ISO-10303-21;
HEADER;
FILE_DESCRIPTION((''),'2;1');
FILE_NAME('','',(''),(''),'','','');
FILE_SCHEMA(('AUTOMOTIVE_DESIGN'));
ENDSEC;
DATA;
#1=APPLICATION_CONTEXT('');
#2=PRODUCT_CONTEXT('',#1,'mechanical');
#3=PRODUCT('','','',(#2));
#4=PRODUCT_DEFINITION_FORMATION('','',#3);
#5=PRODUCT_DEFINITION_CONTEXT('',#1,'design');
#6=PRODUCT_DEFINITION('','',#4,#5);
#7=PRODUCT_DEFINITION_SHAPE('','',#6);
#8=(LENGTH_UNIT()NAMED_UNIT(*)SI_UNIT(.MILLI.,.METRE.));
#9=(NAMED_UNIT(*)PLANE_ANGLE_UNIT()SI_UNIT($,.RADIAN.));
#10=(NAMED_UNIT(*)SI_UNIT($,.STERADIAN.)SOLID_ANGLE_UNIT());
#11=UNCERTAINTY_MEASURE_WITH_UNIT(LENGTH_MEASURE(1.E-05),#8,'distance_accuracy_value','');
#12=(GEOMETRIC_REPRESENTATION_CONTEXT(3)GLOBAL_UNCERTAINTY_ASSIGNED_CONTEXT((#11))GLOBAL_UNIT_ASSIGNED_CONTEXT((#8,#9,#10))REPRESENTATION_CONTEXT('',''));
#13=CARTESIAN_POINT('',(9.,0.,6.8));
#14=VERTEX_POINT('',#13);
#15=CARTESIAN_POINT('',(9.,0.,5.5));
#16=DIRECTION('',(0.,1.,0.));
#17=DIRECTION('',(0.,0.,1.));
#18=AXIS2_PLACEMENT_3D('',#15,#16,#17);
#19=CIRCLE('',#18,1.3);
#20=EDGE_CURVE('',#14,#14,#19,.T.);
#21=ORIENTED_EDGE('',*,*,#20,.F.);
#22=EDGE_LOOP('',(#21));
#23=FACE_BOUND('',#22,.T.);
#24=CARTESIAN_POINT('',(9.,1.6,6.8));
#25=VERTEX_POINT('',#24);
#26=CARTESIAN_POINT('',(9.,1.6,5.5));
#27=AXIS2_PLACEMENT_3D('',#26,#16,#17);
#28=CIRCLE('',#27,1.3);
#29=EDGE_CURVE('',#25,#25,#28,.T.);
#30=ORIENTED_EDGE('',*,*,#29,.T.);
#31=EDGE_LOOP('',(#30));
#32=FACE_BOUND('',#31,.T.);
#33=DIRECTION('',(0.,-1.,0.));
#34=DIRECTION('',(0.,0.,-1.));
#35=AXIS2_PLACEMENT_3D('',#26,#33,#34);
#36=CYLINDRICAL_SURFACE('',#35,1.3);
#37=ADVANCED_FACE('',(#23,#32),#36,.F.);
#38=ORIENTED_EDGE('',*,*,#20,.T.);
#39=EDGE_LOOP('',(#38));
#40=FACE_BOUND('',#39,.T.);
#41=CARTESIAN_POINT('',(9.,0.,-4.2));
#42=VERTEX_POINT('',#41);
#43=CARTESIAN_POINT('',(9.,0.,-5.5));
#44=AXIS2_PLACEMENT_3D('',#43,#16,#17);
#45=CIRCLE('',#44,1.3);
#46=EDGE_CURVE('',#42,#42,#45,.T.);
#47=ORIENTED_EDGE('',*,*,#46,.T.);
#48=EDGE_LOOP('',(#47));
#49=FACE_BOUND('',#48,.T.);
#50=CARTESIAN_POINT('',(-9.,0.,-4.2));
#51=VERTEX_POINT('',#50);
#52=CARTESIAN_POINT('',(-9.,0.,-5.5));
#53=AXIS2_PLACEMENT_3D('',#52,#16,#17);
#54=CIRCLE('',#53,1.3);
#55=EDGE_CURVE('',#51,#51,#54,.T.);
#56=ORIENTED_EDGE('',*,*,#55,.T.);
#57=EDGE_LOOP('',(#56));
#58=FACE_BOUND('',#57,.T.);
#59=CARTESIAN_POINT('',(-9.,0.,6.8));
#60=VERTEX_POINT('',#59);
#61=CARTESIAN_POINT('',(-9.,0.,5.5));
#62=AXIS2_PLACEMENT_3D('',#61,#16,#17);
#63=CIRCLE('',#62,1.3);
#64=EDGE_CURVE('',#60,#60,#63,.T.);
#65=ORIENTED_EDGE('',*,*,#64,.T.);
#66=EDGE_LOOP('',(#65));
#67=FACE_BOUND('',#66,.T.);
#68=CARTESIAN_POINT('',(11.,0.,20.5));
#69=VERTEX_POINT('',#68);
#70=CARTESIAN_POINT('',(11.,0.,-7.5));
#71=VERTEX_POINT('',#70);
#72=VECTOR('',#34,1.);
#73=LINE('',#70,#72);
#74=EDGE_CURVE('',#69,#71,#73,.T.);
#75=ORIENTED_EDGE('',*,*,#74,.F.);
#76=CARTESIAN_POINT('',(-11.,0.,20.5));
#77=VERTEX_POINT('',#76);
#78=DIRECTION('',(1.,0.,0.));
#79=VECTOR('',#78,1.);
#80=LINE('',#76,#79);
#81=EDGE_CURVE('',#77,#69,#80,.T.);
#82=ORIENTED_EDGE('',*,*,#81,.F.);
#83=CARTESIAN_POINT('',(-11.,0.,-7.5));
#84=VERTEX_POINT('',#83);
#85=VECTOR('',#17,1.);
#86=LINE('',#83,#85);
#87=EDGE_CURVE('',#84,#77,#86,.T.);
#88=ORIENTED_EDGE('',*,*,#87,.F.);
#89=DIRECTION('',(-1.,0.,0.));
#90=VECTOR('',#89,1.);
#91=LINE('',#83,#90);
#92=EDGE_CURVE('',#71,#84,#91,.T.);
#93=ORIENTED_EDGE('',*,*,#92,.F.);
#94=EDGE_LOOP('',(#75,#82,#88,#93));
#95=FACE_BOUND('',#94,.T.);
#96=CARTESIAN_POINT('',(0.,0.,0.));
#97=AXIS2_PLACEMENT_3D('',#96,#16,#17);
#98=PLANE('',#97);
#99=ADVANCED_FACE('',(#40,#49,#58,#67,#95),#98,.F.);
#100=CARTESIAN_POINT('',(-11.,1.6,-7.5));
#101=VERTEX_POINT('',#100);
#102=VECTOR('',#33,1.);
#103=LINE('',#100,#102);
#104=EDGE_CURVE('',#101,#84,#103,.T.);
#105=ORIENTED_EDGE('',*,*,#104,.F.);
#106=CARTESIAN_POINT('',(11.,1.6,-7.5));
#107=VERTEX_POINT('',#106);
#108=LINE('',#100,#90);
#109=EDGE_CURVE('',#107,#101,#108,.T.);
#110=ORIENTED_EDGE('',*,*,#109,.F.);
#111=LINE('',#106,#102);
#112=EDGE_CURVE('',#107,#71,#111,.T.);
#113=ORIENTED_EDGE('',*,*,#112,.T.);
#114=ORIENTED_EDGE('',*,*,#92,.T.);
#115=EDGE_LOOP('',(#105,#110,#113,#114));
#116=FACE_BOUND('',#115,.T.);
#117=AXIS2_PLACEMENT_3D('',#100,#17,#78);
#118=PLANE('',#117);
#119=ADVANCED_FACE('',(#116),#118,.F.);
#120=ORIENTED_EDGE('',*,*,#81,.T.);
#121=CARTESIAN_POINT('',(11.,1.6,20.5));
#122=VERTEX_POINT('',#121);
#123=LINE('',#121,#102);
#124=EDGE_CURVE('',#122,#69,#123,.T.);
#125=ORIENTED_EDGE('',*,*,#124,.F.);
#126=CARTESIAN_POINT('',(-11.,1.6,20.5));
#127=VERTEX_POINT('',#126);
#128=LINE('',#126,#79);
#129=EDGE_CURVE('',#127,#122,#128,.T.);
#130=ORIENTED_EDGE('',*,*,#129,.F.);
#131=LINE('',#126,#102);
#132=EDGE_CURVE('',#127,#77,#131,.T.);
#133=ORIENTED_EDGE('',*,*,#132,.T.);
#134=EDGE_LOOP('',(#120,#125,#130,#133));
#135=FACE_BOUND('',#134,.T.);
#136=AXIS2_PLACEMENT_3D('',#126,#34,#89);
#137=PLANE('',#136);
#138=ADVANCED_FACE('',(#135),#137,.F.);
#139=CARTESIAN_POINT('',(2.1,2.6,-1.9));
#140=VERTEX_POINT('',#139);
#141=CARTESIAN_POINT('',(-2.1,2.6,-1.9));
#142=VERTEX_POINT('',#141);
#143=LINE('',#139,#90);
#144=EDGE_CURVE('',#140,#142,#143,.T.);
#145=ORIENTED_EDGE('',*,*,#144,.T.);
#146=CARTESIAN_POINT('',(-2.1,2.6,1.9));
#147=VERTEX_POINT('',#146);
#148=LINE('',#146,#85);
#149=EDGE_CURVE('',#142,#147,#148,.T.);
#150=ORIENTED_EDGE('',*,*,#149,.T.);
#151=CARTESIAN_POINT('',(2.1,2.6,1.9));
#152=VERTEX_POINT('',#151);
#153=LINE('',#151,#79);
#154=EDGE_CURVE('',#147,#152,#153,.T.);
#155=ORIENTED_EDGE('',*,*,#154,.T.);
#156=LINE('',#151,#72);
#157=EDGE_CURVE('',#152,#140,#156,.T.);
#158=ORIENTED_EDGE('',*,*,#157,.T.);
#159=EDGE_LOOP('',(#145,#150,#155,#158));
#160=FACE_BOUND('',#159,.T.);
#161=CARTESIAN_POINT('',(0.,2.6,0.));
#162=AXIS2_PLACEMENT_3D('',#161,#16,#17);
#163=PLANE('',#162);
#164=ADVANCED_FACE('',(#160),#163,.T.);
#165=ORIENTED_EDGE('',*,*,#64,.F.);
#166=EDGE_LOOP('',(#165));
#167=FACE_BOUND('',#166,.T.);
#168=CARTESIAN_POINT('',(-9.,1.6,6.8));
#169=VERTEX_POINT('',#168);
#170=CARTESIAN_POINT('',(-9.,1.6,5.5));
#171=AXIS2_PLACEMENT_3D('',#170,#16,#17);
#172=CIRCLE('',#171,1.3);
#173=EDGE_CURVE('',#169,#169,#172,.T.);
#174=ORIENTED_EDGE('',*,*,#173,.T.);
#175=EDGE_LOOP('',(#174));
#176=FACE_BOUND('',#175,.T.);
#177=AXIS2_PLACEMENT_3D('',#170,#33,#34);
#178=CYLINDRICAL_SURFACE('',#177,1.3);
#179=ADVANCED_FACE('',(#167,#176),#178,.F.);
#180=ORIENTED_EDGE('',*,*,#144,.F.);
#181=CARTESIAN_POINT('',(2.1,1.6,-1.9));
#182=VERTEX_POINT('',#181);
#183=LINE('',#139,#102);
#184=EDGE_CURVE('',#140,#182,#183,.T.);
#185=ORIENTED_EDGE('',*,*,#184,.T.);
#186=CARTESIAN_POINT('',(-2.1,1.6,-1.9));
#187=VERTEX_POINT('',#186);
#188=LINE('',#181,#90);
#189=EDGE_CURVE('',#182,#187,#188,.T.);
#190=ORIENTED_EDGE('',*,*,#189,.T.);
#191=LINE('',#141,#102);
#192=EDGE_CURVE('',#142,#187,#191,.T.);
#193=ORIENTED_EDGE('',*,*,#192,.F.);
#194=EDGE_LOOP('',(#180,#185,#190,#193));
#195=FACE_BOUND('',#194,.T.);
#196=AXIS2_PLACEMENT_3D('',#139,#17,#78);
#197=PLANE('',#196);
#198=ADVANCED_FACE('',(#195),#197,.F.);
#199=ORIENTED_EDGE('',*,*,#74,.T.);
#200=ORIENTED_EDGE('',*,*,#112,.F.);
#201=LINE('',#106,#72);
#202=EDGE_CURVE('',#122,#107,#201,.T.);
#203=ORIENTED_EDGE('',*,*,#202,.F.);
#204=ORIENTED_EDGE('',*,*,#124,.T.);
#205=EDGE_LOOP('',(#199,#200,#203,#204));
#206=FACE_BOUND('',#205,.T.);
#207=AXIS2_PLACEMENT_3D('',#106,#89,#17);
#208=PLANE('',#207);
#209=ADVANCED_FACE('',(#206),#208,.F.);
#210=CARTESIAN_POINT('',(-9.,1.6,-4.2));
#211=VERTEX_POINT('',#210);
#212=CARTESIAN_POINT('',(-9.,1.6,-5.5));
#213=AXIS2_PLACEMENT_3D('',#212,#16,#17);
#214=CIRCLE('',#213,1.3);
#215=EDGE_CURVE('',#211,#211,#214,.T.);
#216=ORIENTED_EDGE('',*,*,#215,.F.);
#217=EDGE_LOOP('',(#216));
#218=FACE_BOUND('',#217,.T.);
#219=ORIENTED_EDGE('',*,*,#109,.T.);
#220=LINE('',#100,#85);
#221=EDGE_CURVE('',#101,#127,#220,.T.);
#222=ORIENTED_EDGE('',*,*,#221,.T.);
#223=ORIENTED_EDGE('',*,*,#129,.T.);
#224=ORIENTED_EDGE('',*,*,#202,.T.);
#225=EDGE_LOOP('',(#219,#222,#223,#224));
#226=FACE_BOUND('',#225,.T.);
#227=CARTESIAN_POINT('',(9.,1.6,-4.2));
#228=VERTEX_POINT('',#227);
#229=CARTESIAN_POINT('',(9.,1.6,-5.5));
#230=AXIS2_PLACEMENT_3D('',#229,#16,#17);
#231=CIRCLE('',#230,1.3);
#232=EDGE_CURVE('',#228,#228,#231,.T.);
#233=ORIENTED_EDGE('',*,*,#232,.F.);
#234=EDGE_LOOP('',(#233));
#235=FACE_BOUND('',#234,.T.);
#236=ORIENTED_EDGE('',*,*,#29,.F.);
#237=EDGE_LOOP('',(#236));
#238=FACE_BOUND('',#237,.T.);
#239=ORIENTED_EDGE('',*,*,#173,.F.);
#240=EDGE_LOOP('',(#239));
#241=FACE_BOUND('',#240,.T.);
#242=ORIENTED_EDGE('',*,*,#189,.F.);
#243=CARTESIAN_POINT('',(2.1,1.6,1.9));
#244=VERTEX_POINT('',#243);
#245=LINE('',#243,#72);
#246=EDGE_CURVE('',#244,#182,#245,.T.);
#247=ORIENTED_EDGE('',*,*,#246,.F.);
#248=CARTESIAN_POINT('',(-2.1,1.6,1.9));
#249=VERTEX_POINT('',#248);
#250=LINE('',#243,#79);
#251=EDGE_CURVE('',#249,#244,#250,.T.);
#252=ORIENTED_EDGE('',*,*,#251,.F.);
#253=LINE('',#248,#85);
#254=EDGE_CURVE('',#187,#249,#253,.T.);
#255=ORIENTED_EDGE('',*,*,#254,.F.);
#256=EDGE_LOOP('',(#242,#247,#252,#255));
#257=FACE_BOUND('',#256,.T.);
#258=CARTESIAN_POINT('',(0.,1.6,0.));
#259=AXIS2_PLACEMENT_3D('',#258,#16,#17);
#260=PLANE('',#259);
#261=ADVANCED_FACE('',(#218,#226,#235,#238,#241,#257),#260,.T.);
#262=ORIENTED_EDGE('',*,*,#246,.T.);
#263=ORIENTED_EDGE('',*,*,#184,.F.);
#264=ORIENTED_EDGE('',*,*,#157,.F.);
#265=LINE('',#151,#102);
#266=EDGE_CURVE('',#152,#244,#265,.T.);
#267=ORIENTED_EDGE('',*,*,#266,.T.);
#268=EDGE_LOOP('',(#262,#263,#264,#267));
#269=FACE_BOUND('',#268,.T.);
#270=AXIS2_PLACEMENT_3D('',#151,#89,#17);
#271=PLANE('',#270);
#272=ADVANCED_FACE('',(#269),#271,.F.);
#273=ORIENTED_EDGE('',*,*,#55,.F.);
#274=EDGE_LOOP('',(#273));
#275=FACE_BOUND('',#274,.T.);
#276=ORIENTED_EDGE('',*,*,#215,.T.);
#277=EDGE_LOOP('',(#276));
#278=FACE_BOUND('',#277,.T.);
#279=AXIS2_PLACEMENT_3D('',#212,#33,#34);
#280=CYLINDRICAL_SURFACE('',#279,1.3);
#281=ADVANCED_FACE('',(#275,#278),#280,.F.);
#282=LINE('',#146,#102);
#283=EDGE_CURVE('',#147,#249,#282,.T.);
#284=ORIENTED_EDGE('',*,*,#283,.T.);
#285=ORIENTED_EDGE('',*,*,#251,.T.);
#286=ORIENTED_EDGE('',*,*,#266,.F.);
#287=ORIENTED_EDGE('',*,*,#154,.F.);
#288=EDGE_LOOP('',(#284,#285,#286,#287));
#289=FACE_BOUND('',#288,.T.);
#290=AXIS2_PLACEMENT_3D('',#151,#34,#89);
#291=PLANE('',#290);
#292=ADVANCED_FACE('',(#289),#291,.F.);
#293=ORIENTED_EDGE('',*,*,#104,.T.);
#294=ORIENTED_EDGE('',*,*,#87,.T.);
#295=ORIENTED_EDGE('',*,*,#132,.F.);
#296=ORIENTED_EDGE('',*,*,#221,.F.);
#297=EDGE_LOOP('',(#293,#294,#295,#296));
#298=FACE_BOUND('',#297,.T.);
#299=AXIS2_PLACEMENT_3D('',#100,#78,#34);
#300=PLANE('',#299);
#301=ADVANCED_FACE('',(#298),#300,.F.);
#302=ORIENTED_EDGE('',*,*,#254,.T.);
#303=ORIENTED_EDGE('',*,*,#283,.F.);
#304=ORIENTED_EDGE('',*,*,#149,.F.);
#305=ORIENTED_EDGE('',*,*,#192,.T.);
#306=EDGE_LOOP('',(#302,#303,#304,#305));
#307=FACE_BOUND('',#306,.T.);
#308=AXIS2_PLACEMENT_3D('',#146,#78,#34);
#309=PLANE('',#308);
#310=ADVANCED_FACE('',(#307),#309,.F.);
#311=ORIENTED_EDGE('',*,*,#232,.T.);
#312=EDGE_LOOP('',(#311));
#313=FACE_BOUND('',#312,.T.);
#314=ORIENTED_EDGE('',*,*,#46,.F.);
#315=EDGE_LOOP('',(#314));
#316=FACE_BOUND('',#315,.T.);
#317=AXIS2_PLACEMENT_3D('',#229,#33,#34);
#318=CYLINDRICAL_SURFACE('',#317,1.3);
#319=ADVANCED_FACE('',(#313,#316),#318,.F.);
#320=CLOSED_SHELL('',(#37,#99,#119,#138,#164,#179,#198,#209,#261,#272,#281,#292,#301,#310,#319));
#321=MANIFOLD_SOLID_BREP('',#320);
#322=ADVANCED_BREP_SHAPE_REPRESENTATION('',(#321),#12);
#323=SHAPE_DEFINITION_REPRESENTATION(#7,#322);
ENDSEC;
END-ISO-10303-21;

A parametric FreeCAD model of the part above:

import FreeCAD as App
import Part
import Sketcher
from FreeCAD import Vector

doc = App.newDocument("Part")
body = doc.addObject("PartDesign::Body", "Body")

# Sketch on XZ plane
sketch1 = body.newObject("Sketcher::SketchObject", "Sketch")
sketch1.AttachmentSupport = (doc.getObject("XZ_Plane"), [""])
sketch1.MapMode = "FlatFace"
sketch1.addGeometry([
    Part.LineSegment(Vector(-11, -7.5, 0), Vector(-11, 20.5, 0)),  # 0
    Part.LineSegment(Vector(-11, 20.5, 0), Vector(11, 20.5, 0)),  # 1
    Part.LineSegment(Vector(11, 20.5, 0), Vector(11, -7.5, 0)),  # 2
    Part.LineSegment(Vector(11, -7.5, 0), Vector(-11, -7.5, 0)),  # 3
    Part.Circle(Vector(-9, 5.5, 0), Vector(0, 0, 1), 1.3),  # 4
    Part.Circle(Vector(9, 5.5, 0), Vector(0, 0, 1), 1.3),  # 5
    Part.Circle(Vector(-9, -5.5, 0), Vector(0, 0, 1), 1.3),  # 6
    Part.Circle(Vector(9, -5.5, 0), Vector(0, 0, 1), 1.3),  # 7
], False)
sketch1.addConstraint([
    Sketcher.Constraint("Coincident", 0, 2, 1, 1),
    Sketcher.Constraint("Coincident", 1, 2, 2, 1),
    Sketcher.Constraint("Coincident", 2, 2, 3, 1),
    Sketcher.Constraint("Coincident", 3, 2, 0, 1),
    Sketcher.Constraint("Vertical", 0),
    Sketcher.Constraint("Horizontal", 1),
    Sketcher.Constraint("Vertical", 2),
    Sketcher.Constraint("Horizontal", 3),
    Sketcher.Constraint("Equal", 4, 5),
    Sketcher.Constraint("Equal", 5, 6),
    Sketcher.Constraint("Equal", 6, 7),
    Sketcher.Constraint("Symmetric", 5, 3, 6, 3, -1, 1),
    Sketcher.Constraint("Symmetric", 4, 3, 7, 3, -1, 1),
    Sketcher.Constraint("Symmetric", 4, 3, 5, 3, -2),
    Sketcher.Constraint("Diameter", 4, 2.6),
    Sketcher.Constraint("DistanceX", 1, 1, 1, 2, 22.0),
    Sketcher.Constraint("DistanceY", 0, 1, 0, 2, 28.0),
    Sketcher.Constraint("DistanceX", 4, 3, -1, 1, 9.0),
    Sketcher.Constraint("DistanceX", 0, 2, -1, 1, 11.0),
    Sketcher.Constraint("DistanceY", 6, 3, 4, 3, 11.0),
    Sketcher.Constraint("DistanceY", 4, 3, 0, 2, 15.0),
])
pad1 = body.newObject("PartDesign::Pad", "Pad")
pad1.Profile = sketch1
pad1.Length = 1.6
pad1.Reversed = True

# Sketch on XZ plane
sketch2 = body.newObject("Sketcher::SketchObject", "Sketch001")
sketch2.AttachmentSupport = (doc.getObject("XZ_Plane"), [""])
sketch2.MapMode = "FlatFace"
sketch2.AttachmentOffset = App.Placement(Vector(0, 0, -1.6), App.Rotation())
sketch2.addGeometry([
    Part.LineSegment(Vector(-2.1, -1.9, 0), Vector(-2.1, 1.9, 0)),
    Part.LineSegment(Vector(-2.1, 1.9, 0), Vector(2.1, 1.9, 0)),
    Part.LineSegment(Vector(2.1, 1.9, 0), Vector(2.1, -1.9, 0)),
    Part.LineSegment(Vector(2.1, -1.9, 0), Vector(-2.1, -1.9, 0)),
], False)
sketch2.addConstraint([
    Sketcher.Constraint("Coincident", 0, 2, 1, 1),
    Sketcher.Constraint("Coincident", 1, 2, 2, 1),
    Sketcher.Constraint("Coincident", 2, 2, 3, 1),
    Sketcher.Constraint("Coincident", 3, 2, 0, 1),
    Sketcher.Constraint("Vertical", 0),
    Sketcher.Constraint("Horizontal", 1),
    Sketcher.Constraint("Vertical", 2),
    Sketcher.Constraint("Horizontal", 3),
    Sketcher.Constraint("Symmetric", 0, 2, 2, 2, -1, 1),
    Sketcher.Constraint("DistanceX", 1, 1, 1, 2, 4.2),
    Sketcher.Constraint("DistanceY", 0, 1, 0, 2, 3.8),
])
pad2 = body.newObject("PartDesign::Pad", "Pad001")
pad2.Profile = sketch2
pad2.Length = 1
pad2.Reversed = True

doc.recompute()
